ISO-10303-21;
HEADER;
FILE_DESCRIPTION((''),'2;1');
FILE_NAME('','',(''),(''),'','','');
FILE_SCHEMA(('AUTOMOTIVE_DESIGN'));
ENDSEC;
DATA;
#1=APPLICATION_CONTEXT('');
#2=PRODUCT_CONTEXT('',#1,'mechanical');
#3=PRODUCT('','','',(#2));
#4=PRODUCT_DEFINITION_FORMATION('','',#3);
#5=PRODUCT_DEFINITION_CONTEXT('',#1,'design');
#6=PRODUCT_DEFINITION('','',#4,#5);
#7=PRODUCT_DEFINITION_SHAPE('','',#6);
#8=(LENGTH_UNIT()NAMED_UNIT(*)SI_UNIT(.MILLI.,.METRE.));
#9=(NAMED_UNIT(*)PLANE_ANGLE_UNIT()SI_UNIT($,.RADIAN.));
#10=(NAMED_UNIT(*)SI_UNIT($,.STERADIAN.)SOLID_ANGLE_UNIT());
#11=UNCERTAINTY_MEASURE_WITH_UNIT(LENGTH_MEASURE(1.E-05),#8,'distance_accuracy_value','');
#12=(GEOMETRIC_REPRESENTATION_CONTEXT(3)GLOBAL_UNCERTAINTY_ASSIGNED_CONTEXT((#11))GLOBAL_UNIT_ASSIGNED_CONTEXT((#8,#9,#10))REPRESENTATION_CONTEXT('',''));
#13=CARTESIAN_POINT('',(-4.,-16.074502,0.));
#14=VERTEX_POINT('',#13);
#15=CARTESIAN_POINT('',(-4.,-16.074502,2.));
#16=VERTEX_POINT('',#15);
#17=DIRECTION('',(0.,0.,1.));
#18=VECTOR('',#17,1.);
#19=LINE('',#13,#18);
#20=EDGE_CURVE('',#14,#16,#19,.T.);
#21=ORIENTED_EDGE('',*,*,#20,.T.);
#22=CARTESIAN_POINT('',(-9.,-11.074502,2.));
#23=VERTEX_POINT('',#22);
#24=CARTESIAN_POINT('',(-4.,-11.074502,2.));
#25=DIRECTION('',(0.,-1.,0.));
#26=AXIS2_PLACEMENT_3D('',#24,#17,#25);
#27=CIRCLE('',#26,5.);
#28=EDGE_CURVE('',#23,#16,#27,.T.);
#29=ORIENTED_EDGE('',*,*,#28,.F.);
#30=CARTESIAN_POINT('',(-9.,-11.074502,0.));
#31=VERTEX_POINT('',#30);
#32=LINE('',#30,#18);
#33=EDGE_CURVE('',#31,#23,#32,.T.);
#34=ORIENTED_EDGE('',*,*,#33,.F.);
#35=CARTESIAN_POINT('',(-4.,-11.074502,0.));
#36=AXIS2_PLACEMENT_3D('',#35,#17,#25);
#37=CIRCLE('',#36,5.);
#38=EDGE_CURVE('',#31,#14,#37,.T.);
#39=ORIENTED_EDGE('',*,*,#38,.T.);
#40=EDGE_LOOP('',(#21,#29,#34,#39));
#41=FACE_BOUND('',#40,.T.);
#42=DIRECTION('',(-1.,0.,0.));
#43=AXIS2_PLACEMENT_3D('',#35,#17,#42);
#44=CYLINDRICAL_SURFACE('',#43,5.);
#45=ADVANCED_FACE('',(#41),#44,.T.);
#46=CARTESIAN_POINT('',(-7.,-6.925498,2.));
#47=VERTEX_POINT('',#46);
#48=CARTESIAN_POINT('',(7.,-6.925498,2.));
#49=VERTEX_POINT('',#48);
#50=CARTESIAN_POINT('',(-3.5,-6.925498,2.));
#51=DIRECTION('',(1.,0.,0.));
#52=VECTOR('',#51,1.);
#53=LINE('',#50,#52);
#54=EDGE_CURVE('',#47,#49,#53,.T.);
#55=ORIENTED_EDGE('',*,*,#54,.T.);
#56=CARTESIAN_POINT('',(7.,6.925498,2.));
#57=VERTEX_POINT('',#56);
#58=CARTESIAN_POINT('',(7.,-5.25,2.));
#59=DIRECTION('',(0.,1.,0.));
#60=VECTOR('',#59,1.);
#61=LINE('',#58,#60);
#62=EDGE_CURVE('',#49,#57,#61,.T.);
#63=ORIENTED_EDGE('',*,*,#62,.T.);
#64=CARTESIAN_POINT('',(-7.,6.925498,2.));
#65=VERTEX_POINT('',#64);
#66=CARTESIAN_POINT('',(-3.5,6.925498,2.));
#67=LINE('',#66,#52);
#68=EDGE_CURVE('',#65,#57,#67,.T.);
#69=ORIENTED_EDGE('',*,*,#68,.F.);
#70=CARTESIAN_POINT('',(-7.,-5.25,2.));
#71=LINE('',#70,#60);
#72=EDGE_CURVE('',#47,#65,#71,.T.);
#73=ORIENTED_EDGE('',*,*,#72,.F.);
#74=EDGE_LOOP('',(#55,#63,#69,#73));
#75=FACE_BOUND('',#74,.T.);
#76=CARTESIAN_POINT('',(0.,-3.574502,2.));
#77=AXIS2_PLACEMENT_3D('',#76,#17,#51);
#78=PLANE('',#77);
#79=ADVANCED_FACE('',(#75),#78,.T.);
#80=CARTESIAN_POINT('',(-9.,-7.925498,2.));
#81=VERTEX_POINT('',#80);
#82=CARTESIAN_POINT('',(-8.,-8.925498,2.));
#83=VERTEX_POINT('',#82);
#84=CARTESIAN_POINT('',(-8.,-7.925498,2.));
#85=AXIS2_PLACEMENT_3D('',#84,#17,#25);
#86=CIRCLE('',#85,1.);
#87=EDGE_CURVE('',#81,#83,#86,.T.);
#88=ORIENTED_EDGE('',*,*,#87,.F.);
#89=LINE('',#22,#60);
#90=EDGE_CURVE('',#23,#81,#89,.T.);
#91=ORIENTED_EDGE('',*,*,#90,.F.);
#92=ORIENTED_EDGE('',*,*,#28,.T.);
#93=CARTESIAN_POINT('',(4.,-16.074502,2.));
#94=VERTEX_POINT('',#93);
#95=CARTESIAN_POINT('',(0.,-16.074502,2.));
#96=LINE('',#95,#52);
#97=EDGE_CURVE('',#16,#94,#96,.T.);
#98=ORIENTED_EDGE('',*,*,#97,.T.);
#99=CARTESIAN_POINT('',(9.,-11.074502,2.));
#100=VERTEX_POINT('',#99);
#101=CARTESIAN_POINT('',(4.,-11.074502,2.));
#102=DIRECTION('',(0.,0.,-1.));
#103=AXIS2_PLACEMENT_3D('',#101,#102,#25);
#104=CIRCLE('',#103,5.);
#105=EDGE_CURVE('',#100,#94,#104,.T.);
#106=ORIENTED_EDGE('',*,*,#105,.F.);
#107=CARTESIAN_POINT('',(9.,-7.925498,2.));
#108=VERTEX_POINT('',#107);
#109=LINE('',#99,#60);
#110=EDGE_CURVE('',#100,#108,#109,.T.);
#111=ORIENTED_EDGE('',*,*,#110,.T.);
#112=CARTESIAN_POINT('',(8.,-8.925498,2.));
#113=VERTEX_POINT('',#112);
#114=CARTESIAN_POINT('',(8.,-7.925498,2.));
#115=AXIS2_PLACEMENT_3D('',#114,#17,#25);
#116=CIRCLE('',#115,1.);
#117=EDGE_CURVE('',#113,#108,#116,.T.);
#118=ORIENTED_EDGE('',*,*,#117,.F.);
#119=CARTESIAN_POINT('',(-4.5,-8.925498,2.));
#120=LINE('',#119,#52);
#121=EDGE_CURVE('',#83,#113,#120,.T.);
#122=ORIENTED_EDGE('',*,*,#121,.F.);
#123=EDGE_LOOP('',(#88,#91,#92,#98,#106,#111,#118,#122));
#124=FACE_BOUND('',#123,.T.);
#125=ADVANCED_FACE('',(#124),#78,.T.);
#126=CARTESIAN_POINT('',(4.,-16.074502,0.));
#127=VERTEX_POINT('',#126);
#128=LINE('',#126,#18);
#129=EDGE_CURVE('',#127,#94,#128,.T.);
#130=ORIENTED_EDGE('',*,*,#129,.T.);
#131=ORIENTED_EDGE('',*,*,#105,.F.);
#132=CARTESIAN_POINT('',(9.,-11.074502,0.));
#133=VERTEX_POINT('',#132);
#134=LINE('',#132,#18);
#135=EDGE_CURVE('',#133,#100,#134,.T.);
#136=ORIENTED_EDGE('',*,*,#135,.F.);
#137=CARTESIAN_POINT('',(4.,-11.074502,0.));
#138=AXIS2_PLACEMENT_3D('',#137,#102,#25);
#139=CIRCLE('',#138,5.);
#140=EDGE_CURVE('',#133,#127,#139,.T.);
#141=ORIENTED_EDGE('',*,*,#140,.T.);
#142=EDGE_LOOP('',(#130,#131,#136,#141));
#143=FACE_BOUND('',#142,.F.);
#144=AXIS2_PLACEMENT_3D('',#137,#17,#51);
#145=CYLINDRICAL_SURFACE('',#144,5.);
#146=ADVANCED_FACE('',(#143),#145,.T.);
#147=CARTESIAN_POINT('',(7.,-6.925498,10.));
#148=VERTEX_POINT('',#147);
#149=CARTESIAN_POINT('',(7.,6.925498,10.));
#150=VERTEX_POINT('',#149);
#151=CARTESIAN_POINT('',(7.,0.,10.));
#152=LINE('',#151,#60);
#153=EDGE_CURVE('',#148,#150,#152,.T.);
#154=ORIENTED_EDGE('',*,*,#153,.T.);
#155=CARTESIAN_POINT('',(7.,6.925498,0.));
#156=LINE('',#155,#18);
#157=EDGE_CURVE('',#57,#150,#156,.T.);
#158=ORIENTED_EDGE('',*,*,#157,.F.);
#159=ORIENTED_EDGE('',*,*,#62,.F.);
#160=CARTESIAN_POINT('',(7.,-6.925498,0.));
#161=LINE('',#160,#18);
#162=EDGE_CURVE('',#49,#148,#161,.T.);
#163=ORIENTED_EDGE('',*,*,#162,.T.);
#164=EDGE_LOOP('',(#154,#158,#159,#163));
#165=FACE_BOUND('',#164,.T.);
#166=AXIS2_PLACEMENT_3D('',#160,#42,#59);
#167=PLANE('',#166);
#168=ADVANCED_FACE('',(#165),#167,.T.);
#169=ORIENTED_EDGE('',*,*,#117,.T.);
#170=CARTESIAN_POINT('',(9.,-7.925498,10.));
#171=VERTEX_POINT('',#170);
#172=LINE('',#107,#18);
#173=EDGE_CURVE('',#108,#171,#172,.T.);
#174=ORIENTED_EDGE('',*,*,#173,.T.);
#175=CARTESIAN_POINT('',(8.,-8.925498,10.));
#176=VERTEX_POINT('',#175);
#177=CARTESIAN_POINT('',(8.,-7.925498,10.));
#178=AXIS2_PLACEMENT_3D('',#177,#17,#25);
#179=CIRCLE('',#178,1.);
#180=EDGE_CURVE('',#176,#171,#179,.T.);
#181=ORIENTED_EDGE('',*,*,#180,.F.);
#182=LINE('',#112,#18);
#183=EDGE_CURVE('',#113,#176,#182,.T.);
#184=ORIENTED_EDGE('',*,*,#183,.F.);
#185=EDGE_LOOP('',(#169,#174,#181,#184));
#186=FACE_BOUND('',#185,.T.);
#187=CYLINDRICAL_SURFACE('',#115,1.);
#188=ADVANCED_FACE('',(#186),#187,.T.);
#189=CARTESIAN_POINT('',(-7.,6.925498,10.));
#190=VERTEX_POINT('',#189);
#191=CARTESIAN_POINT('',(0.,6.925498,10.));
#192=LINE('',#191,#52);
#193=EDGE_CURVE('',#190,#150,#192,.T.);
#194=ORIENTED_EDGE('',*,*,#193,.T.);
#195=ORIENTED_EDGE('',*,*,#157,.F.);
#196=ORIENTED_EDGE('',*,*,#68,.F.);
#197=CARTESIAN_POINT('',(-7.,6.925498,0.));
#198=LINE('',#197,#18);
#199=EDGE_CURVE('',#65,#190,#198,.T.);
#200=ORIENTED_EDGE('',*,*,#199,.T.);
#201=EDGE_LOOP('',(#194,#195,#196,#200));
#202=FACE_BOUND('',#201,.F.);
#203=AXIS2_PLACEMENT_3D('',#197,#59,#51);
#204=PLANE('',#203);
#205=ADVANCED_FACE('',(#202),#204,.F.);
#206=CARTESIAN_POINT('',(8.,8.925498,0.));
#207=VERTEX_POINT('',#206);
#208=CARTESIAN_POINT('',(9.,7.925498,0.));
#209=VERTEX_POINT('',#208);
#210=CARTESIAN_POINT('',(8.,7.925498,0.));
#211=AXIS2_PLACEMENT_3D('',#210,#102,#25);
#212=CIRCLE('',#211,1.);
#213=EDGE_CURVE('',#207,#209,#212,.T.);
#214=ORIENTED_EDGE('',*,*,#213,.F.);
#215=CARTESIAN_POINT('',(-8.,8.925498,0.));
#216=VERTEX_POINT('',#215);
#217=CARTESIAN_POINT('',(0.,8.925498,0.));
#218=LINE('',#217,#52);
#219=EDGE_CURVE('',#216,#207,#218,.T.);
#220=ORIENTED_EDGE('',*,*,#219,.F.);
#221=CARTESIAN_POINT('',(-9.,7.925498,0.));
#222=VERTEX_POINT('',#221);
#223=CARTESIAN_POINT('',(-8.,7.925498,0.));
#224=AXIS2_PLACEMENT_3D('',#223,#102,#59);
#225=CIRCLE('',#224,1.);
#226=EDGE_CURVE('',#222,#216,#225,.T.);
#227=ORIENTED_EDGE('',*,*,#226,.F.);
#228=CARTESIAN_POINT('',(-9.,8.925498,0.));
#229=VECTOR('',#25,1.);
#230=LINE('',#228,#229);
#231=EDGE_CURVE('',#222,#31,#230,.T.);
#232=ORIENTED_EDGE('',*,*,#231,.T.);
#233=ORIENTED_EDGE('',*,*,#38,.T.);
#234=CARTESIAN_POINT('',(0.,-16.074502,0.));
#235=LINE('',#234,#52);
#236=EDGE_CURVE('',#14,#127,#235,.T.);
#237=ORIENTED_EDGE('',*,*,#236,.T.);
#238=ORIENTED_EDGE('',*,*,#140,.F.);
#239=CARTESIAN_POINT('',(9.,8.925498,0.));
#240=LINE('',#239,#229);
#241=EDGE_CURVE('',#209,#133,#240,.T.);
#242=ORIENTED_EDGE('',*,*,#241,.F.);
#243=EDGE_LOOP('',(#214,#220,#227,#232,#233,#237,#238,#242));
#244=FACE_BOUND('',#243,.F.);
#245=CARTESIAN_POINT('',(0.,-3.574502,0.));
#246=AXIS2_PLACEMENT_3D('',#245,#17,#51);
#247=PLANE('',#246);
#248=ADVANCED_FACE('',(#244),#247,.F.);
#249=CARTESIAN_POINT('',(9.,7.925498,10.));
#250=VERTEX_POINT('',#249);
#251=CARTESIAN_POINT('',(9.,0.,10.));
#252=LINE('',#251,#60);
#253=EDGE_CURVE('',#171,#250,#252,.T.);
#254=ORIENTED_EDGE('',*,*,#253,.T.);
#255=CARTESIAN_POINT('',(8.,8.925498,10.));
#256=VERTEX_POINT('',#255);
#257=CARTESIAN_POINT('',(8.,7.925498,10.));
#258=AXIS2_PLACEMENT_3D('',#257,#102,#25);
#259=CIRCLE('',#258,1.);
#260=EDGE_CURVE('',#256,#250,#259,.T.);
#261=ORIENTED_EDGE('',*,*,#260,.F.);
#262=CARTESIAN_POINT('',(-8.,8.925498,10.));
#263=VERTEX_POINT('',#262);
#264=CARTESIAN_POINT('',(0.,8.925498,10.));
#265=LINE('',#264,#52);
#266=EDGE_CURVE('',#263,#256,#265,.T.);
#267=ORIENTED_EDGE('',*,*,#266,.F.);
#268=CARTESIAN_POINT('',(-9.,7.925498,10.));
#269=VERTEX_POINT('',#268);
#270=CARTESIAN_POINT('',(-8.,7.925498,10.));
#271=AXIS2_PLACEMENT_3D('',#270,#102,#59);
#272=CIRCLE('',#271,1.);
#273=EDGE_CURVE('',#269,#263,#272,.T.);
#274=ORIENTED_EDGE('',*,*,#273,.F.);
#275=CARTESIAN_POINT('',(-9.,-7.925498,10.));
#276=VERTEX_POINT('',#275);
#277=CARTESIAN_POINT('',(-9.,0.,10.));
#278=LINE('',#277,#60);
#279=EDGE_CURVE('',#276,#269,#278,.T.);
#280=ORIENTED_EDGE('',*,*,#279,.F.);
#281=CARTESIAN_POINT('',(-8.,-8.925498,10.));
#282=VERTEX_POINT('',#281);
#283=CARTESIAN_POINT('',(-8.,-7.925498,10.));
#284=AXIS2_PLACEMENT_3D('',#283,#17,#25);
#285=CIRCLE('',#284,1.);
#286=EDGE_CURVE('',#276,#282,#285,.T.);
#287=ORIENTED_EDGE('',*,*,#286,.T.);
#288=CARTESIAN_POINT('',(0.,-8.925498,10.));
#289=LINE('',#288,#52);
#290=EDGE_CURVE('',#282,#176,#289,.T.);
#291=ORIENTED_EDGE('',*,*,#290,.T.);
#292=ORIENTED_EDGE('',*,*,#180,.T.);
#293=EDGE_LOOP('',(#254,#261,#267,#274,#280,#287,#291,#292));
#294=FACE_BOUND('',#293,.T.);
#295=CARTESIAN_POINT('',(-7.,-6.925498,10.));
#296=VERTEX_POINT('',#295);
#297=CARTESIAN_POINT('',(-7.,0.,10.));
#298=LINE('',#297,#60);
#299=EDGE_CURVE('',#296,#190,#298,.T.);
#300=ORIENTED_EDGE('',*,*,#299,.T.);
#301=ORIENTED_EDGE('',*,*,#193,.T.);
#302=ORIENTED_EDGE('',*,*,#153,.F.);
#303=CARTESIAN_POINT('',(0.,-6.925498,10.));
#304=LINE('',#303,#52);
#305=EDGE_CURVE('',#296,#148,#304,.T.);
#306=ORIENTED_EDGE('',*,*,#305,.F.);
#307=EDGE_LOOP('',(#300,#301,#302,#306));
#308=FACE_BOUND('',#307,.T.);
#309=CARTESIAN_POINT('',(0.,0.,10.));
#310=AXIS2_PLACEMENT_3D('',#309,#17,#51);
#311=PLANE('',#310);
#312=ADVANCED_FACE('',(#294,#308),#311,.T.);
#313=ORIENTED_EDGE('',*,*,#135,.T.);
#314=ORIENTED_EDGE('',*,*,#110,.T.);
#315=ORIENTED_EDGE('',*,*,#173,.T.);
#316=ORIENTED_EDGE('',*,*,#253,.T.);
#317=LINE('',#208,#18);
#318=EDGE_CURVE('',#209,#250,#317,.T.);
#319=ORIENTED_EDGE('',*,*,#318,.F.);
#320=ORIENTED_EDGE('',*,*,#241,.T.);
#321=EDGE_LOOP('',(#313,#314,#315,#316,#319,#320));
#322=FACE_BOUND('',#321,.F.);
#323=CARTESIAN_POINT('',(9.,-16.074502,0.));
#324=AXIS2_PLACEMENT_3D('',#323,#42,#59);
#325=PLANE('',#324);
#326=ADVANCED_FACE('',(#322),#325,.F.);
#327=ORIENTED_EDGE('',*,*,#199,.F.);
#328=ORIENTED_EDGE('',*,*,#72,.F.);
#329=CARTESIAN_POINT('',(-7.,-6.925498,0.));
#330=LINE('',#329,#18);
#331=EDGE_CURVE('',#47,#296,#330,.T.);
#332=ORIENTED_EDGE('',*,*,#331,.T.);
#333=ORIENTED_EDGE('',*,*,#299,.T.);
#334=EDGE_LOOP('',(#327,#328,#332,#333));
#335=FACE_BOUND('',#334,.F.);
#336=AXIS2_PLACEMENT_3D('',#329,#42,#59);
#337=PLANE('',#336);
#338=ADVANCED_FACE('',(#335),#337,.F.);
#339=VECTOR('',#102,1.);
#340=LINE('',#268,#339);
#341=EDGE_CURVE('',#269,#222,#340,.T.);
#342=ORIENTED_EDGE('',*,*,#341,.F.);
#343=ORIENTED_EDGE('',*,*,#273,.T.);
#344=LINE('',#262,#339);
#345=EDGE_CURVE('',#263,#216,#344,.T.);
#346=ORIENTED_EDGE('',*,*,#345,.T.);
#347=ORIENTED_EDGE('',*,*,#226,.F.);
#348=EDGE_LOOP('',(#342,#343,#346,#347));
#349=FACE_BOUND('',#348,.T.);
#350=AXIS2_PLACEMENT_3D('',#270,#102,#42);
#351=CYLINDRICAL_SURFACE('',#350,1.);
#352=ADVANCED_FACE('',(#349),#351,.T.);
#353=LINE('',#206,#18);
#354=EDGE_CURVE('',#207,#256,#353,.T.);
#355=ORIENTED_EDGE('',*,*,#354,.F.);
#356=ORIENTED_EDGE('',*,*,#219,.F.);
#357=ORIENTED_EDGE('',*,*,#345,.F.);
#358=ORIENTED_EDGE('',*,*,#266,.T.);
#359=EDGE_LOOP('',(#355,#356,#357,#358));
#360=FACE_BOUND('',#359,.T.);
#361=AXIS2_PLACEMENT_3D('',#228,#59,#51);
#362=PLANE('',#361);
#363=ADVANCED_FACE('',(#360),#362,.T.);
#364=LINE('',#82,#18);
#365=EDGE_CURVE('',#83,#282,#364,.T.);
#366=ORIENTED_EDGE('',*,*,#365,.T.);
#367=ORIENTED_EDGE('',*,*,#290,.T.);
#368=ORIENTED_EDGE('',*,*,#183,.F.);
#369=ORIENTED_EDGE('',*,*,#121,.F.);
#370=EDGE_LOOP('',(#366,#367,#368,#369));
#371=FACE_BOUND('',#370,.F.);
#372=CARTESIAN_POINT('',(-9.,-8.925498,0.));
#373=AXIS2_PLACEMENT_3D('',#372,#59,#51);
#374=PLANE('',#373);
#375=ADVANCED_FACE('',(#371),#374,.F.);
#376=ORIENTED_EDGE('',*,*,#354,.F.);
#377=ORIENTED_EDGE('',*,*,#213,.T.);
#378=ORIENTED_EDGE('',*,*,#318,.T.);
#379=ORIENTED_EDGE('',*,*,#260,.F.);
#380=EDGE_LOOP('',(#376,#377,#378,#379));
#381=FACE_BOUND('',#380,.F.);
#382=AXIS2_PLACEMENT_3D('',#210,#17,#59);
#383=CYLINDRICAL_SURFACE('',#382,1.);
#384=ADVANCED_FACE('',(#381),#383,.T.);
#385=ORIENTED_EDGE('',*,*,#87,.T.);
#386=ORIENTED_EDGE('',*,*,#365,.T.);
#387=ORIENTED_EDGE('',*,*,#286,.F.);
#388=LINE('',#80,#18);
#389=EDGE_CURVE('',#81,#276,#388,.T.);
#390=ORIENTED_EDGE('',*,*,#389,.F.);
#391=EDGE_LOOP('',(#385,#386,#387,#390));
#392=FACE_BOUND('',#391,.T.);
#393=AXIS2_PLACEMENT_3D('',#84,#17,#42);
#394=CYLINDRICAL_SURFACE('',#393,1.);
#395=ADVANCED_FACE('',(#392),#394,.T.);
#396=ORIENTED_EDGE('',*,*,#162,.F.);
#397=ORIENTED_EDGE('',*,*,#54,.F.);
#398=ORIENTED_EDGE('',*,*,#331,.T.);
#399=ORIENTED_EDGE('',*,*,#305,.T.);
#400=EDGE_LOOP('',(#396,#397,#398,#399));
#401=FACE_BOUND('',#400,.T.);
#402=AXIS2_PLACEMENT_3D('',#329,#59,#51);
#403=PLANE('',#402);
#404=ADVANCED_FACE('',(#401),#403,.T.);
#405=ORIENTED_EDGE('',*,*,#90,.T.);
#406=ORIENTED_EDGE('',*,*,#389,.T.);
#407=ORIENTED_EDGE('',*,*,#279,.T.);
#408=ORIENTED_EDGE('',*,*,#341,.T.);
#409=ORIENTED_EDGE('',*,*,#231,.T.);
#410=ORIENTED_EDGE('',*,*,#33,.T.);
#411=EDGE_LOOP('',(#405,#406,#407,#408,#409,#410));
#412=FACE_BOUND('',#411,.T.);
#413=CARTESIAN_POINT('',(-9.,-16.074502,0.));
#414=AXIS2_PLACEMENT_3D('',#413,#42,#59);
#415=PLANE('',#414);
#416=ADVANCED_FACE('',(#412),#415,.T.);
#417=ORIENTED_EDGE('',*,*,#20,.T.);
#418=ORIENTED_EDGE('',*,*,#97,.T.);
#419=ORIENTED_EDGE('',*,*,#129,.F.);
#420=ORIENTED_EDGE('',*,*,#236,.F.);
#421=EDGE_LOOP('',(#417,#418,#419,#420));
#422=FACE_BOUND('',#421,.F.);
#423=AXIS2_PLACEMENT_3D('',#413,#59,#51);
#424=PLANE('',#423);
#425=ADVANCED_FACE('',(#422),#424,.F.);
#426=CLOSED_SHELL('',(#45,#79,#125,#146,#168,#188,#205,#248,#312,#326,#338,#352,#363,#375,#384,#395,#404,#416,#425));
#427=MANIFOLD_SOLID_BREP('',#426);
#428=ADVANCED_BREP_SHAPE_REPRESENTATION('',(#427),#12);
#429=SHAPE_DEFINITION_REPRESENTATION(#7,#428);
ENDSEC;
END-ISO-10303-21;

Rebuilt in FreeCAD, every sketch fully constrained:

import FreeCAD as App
import Part
import Sketcher

V = App.Vector
Q = App.Units.Quantity


def edges_at(feature, points):
    """Names of the edges that pass closest to the given points."""
    edges = feature.Shape.Edges
    near = lambda p: min(range(len(edges)), key=lambda i: edges[i].distToShape(Part.Vertex(*p))[0])
    return sorted({f"Edge{near(p) + 1}" for p in points})

doc = App.newDocument("Part")
params = doc.addObject("Spreadsheet::Sheet", "Params")
for row, (alias, value) in enumerate([
    ("sketch1_width", "18 mm"),
    ("sketch1_width2", "14 mm"),
    ("pad1_length", "10 mm"),
    ("sketch2_width", "18 mm"),
    ("sketch2_height", "25 mm"),
    ("pad2_length", "2 mm"),
    ("fillet_radius", "5 mm"),
    ("fillet2_radius", "1 mm"),
], start=1):
    params.set(f"A{row}", alias)
    params.set(f"B{row}", "=" + value)
    params.setAlias(f"B{row}", alias)

body = doc.addObject("PartDesign::Body", "Body")

# Sketch on XY plane
sketch1 = body.newObject("Sketcher::SketchObject", "Sketch")
sketch1.AttachmentSupport = (doc.getObject("XY_Plane"), [""])
sketch1.MapMode = "FlatFace"
sketch1.addGeometry([
    Part.LineSegment(V(-9, 8.925498, 0), V(-9, -8.925498, 0)),  # 0
    Part.LineSegment(V(-9, -8.925498, 0), V(9, -8.925498, 0)),  # 1
    Part.LineSegment(V(9, -8.925498, 0), V(9, 8.925498, 0)),  # 2
    Part.LineSegment(V(9, 8.925498, 0), V(-9, 8.925498, 0)),  # 3
    Part.LineSegment(V(7, -6.925498, 0), V(-7, -6.925498, 0)),  # 4
    Part.LineSegment(V(-7, -6.925498, 0), V(-7, 6.925498, 0)),  # 5
    Part.LineSegment(V(-7, 6.925498, 0), V(7, 6.925498, 0)),  # 6
    Part.LineSegment(V(7, 6.925498, 0), V(7, -6.925498, 0)),  # 7
], False)
sketch1.addConstraint([
    Sketcher.Constraint("Coincident", 0, 2, 1, 1),
    Sketcher.Constraint("Coincident", 1, 2, 2, 1),
    Sketcher.Constraint("Coincident", 2, 2, 3, 1),
    Sketcher.Constraint("Coincident", 3, 2, 0, 1),
    Sketcher.Constraint("Coincident", 4, 2, 5, 1),
    Sketcher.Constraint("Coincident", 5, 2, 6, 1),
    Sketcher.Constraint("Coincident", 6, 2, 7, 1),
    Sketcher.Constraint("Coincident", 7, 2, 4, 1),
    Sketcher.Constraint("Vertical", 0),
    Sketcher.Constraint("Horizontal", 1),
    Sketcher.Constraint("Vertical", 2),
    Sketcher.Constraint("Horizontal", 3),
    Sketcher.Constraint("Horizontal", 4),
    Sketcher.Constraint("Vertical", 5),
    Sketcher.Constraint("Horizontal", 6),
    Sketcher.Constraint("Vertical", 7),
    Sketcher.Constraint("Symmetric", 0, 2, 2, 2, -1, 1),
    Sketcher.Constraint("Symmetric", 4, 2, 6, 2, -1, 1),
    Sketcher.Constraint("DistanceX", 1, 1, 1, 2, Q("18 mm")),
    Sketcher.Constraint("DistanceX", 4, 2, 4, 1, Q("14 mm")),
    Sketcher.Constraint("DistanceY", 0, 2, 4, 2, Q("2 mm")),
    Sketcher.Constraint("DistanceY", 0, 2, 0, 1, Q("17.850996 mm")),
])
sketch1.setExpression("Constraints[18]", "Params.sketch1_width")
sketch1.setExpression("Constraints[19]", "Params.sketch1_width2")
pad1 = body.newObject("PartDesign::Pad", "Pad")
pad1.Profile = sketch1
pad1.setExpression("Length", "Params.pad1_length")

# Sketch on XY plane
sketch2 = body.newObject("Sketcher::SketchObject", "Sketch001")
sketch2.AttachmentSupport = (doc.getObject("XY_Plane"), [""])
sketch2.MapMode = "FlatFace"
sketch2.addGeometry([
    Part.LineSegment(V(-9, 8.925498, 0), V(-9, -16.074502, 0)),
    Part.LineSegment(V(-9, -16.074502, 0), V(9, -16.074502, 0)),
    Part.LineSegment(V(9, -16.074502, 0), V(9, 8.925498, 0)),
    Part.LineSegment(V(9, 8.925498, 0), V(-9, 8.925498, 0)),
], False)
sketch2.addConstraint([
    Sketcher.Constraint("Coincident", 0, 2, 1, 1),
    Sketcher.Constraint("Coincident", 1, 2, 2, 1),
    Sketcher.Constraint("Coincident", 2, 2, 3, 1),
    Sketcher.Constraint("Coincident", 3, 2, 0, 1),
    Sketcher.Constraint("Vertical", 0),
    Sketcher.Constraint("Horizontal", 1),
    Sketcher.Constraint("Vertical", 2),
    Sketcher.Constraint("Horizontal", 3),
    Sketcher.Constraint("DistanceX", 1, 1, 1, 2, Q("18 mm")),
    Sketcher.Constraint("DistanceY", 0, 2, 0, 1, Q("25 mm")),
    Sketcher.Constraint("DistanceX", 0, 2, -1, 1, Q("9 mm")),
    Sketcher.Constraint("DistanceY", 0, 2, -1, 1, Q("16.074502 mm")),
])
sketch2.setExpression("Constraints[8]", "Params.sketch2_width")
sketch2.setExpression("Constraints[9]", "Params.sketch2_height")
pad2 = body.newObject("PartDesign::Pad", "Pad001")
pad2.Profile = sketch2
pad2.setExpression("Length", "Params.pad2_length")
doc.recompute()

fillet = body.newObject("PartDesign::Fillet", "Fillet")
fillet.Base = (pad2, edges_at(pad2, [(9, -16.075, 1), (-9, -16.075, 1)]))
fillet.setExpression("Radius", "Params.fillet_radius")
doc.recompute()

fillet2 = body.newObject("PartDesign::Fillet", "Fillet001")
fillet2.Base = (fillet, edges_at(fillet, [
    (9, -8.925, 6),
    (-9, -8.925, 6),
    (-9, 8.925, 5),
    (9, 8.925, 5),
]))
fillet2.setExpression("Radius", "Params.fillet2_radius")

doc.recompute()
